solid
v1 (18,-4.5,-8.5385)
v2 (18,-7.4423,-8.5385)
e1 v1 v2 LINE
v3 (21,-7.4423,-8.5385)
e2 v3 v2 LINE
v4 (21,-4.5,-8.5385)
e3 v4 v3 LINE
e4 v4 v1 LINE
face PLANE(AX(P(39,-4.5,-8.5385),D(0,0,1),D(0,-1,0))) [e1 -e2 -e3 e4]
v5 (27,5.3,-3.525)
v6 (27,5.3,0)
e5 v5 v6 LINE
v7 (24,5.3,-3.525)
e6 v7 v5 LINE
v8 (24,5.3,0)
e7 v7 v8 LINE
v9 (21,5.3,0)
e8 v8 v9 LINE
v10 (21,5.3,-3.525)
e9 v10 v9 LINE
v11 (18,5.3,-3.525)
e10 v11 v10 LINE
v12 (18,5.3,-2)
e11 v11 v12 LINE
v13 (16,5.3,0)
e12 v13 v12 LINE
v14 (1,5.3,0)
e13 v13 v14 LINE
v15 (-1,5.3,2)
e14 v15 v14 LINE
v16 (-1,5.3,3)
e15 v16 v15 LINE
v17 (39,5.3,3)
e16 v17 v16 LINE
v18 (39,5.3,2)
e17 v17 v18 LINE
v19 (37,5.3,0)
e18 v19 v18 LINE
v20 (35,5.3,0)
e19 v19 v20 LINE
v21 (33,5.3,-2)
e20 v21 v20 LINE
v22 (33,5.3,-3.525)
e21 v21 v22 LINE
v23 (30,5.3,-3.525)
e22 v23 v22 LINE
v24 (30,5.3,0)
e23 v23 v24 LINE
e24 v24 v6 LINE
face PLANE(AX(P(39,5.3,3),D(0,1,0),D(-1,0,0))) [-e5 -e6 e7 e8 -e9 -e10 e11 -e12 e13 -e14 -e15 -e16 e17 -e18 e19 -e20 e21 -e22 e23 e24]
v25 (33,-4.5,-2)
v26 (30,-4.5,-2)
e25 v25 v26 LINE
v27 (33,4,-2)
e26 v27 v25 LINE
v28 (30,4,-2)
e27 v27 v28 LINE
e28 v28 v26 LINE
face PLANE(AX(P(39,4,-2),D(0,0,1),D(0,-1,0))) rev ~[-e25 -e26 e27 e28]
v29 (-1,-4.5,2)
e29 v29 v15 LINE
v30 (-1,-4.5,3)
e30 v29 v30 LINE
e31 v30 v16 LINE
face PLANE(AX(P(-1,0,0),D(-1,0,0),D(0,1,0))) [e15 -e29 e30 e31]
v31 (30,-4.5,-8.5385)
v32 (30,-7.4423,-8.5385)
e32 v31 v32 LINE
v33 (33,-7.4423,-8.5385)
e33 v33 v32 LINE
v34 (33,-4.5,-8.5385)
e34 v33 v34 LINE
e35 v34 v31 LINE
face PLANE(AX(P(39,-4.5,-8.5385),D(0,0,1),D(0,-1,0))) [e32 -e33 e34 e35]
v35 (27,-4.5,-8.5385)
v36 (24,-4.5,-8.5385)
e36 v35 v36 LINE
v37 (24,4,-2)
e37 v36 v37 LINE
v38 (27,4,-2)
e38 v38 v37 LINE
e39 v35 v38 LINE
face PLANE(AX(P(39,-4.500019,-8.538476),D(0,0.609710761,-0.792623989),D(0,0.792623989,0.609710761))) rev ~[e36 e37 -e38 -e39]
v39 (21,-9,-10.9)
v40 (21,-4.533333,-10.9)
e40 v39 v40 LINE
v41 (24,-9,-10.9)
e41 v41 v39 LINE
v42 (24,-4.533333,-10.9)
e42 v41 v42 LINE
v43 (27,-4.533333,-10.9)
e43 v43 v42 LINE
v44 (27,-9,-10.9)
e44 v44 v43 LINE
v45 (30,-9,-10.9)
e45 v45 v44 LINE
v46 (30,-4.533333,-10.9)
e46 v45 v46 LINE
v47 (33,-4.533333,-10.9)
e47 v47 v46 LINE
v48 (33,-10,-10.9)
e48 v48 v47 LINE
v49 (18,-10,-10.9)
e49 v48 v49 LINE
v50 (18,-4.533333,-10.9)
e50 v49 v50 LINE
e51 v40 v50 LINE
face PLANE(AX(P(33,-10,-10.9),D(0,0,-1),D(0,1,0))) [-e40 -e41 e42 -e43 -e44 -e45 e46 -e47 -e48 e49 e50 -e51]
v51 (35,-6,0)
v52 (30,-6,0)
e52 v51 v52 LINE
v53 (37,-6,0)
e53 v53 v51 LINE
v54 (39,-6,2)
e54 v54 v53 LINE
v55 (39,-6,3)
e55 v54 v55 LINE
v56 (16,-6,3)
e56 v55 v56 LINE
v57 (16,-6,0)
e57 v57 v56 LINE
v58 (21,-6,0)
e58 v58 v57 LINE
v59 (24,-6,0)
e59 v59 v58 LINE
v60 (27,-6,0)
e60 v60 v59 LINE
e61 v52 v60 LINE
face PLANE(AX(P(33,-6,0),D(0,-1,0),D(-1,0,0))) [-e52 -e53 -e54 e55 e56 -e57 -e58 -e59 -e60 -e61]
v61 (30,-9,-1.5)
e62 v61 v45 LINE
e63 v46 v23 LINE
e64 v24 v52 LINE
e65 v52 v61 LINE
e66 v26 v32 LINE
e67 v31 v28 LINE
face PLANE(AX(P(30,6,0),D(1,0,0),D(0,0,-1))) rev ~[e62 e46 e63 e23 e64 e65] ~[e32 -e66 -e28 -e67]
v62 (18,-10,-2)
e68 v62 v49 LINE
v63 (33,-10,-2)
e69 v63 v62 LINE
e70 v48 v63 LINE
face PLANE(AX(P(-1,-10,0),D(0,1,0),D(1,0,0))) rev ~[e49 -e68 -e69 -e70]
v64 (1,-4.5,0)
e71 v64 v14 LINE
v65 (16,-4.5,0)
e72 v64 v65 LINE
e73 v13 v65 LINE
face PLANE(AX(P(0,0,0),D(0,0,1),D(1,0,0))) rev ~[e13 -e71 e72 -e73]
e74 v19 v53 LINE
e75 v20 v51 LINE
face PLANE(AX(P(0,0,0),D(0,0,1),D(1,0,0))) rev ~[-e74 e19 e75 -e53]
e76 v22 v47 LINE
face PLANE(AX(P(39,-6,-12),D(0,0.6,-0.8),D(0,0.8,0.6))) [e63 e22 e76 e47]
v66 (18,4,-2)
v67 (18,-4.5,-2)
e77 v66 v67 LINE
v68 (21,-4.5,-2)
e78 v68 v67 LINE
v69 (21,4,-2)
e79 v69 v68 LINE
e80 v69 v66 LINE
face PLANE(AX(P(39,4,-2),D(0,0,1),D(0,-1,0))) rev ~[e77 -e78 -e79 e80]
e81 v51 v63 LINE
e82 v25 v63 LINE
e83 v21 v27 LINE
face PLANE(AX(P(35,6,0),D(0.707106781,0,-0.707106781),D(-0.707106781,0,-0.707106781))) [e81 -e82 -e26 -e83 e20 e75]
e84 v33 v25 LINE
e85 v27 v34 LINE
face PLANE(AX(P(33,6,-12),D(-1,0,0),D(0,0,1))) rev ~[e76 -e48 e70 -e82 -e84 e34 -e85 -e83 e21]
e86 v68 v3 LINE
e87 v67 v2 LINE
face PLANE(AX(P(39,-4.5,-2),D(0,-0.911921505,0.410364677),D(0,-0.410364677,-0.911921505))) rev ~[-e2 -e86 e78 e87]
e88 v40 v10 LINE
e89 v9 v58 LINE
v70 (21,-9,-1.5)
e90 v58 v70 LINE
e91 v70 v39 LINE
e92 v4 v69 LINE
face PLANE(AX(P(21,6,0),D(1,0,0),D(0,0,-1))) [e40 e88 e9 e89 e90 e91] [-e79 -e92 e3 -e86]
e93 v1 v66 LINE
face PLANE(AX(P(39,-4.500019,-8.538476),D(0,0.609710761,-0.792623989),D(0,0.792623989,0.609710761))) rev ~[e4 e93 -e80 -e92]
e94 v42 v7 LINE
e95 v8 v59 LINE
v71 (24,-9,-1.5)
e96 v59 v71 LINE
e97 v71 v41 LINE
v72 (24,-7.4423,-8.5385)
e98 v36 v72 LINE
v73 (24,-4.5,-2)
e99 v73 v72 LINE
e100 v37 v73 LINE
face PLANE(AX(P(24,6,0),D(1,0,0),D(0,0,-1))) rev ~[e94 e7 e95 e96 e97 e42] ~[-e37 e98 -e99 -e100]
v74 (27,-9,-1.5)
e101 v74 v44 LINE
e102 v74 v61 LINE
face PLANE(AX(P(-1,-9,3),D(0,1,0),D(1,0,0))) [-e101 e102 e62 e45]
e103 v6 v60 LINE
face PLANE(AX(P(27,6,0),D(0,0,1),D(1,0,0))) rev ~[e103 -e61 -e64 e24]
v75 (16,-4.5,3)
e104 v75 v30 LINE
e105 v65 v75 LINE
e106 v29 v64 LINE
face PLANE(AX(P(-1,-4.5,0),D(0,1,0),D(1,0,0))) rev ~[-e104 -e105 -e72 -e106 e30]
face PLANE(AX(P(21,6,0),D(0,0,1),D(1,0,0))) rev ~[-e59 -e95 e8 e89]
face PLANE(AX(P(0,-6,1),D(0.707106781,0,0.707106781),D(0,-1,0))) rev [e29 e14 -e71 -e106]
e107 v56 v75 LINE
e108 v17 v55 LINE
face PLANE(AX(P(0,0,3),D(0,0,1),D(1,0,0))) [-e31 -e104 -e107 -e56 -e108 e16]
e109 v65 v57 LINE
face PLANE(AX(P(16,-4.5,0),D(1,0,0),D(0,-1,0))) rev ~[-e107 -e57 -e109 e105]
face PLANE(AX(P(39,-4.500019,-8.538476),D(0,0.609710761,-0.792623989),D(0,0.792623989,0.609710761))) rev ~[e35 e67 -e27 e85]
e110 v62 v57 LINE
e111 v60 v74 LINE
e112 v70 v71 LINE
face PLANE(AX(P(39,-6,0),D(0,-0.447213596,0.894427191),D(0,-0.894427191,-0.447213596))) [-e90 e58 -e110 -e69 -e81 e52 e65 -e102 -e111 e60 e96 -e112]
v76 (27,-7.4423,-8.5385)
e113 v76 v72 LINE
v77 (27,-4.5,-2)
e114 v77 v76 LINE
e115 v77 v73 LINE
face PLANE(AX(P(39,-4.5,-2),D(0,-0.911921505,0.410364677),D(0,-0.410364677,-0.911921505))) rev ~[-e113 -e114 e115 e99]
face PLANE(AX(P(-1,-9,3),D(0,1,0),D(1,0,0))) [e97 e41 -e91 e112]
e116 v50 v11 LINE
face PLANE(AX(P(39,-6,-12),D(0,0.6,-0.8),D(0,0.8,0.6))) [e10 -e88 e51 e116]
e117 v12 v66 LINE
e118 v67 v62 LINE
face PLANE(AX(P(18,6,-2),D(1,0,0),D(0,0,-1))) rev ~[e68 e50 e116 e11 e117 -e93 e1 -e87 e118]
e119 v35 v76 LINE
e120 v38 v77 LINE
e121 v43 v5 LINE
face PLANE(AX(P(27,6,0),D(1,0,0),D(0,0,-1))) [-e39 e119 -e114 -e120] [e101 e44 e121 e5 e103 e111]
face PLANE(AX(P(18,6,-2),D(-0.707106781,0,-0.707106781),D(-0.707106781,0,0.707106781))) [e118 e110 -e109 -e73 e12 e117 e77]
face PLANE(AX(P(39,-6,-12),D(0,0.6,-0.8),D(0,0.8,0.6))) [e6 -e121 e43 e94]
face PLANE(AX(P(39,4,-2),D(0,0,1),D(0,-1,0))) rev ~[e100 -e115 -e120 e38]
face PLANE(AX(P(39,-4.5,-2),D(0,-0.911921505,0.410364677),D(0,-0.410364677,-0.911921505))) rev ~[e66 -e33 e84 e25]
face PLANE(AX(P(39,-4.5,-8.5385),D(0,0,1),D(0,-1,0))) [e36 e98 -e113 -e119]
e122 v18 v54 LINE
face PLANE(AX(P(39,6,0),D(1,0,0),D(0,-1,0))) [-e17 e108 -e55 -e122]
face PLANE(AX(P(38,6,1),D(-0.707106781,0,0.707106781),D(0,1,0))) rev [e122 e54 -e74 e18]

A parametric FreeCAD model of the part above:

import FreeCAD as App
import Part
import Sketcher


def edges_at(feature, points):
    """Names of the edges that pass closest to the given points."""
    edges = feature.Shape.Edges
    near = lambda p: min(range(len(edges)), key=lambda i: edges[i].distToShape(Part.Vertex(*p))[0])
    return sorted({f"Edge{near(p) + 1}" for p in points})


def add_polygon(sketch, points):
    """Adds a closed chain of lines whose ends are joined by coincident constraints."""
    first, n = sketch.GeometryCount, len(points)
    for a, b in zip(points, points[1:] + points[:1]):
        sketch.addGeometry(Part.LineSegment(App.Vector(*a, 0), App.Vector(*b, 0)), False)
    for i in range(n):
        sketch.addConstraint(Sketcher.Constraint("Coincident", first + i, 2, first + (i + 1) % n, 1))

doc = App.newDocument("Part")
params = doc.addObject("Spreadsheet::Sheet", "Params")
for row, (alias, value) in enumerate([
    ("sketch1_width", "40 mm"),
    ("sketch1_height", "12 mm"),
    ("pad1_length", "3 mm"),
    ("sketch2_width", "19 mm"),
    ("pad2_length", "16 mm"),
    ("sketch3_width", "3 mm"),
    ("sketch3_height", "12 mm"),
    ("pocket1_length", "15 mm"),
    ("sketch4_height", "2 mm"),
    ("sketch4_width", "12 mm"),
    ("sketch4_width2", "4 mm"),
    ("sketch4_height2", "9 mm"),
    ("sketch4_length", "7.17 mm"),
    ("pocket2_length", "25 mm"),
    ("chamfer_size", "2 mm"),
    ("chamfer2_size", "2 mm"),
    ("sketch5_width", "7 mm"),
    ("sketch5_height", "1.1 mm"),
    ("pocket3_length", "15 mm"),
    ("sketch6_height", "1.5 mm"),
    ("sketch6_width", "17 mm"),
    ("pocket4_length", "10 mm"),
    ("sketch7_height", "0.7 mm"),
    ("sketch7_width", "40 mm"),
    ("pocket5_length", "10 mm"),
], start=1):
    params.set(f"A{row}", alias)
    params.set(f"B{row}", "=" + value)
    params.setAlias(f"B{row}", alias)

body = doc.addObject("PartDesign::Body", "Body")

# Sketch on XY plane
sketch1 = body.newObject("Sketcher::SketchObject", "Sketch")
sketch1.AttachmentSupport = (doc.getObject("XY_Plane"), [""])
sketch1.MapMode = "FlatFace"
add_polygon(sketch1, [(-1, 6), (-1, -6), (39, -6), (39, 6)])  # lines 0-3
sketch1.addConstraint(Sketcher.Constraint("Vertical", 0))
sketch1.addConstraint(Sketcher.Constraint("Horizontal", 1))
sketch1.addConstraint(Sketcher.Constraint("Vertical", 2))
sketch1.addConstraint(Sketcher.Constraint("Horizontal", 3))
sketch1.addConstraint(Sketcher.Constraint("DistanceX", 0, 2, -1, 1, 1.0))
sketch1.addConstraint(Sketcher.Constraint("DistanceX", 1, 1, 1, 2, 40.0))
sketch1.addConstraint(Sketcher.Constraint("DistanceY", 0, 2, 0, 1, 12.0))
sketch1.addConstraint(Sketcher.Constraint("DistanceY", 0, 2, -1, 1, 6.0))
sketch1.setExpression("Constraints[9]", "Params.sketch1_width")
sketch1.setExpression("Constraints[10]", "Params.sketch1_height")
pad1 = body.newObject("PartDesign::Pad", "Pad")
pad1.Profile = sketch1
pad1.setExpression("Length", "Params.pad1_length")

# Sketch on XZ plane
sketch2 = body.newObject("Sketcher::SketchObject", "Sketch001")
sketch2.AttachmentSupport = (doc.getObject("XZ_Plane"), [""])
sketch2.MapMode = "FlatFace"
sketch2.AttachmentOffset = App.Placement(App.Vector(0, 0, -6), App.Rotation())
add_polygon(sketch2, [(18, -12), (18, -2), (16, 0), (35, 0), (33, -2), (33, -12)])  # lines 0-5
sketch2.addConstraint(Sketcher.Constraint("Vertical", 0))
sketch2.addConstraint(Sketcher.Constraint("Horizontal", 2))
sketch2.addConstraint(Sketcher.Constraint("Vertical", 4))
sketch2.addConstraint(Sketcher.Constraint("Horizontal", 5))
sketch2.addConstraint(Sketcher.Constraint("PointOnObject", 1, 2, -1))
sketch2.addConstraint(Sketcher.Constraint("Perpendicular", 1, 3))
sketch2.addConstraint(Sketcher.Constraint("Horizontal", 0, 2, 3, 2))
sketch2.addConstraint(Sketcher.Constraint("Equal", 1, 3))
sketch2.addConstraint(Sketcher.Constraint("DistanceY", 0, 2, -1, 1, 2.0))
sketch2.addConstraint(Sketcher.Constraint("DistanceY", 4, 2, -1, 1, 12.0))
sketch2.addConstraint(Sketcher.Constraint("DistanceX", 2, 1, 2, 2, 19.0))
sketch2.addConstraint(Sketcher.Constraint("DistanceX", -1, 1, 0, 2, 18.0))
sketch2.setExpression("Constraints[16]", "Params.sketch2_width")
pad2 = body.newObject("PartDesign::Pad", "Pad001")
pad2.Profile = sketch2
pad2.setExpression("Length", "Params.pad2_length")

# Sketch on XZ plane
sketch3 = body.newObject("Sketcher::SketchObject", "Sketch002")
sketch3.AttachmentSupport = (doc.getObject("XZ_Plane"), [""])
sketch3.MapMode = "FlatFace"
sketch3.AttachmentOffset = App.Placement(App.Vector(0, 0, -6), App.Rotation())
add_polygon(sketch3, [(30, 0), (30, -12), (27, -12), (27, 0)])  # lines 0-3
add_polygon(sketch3, [(24, 0), (24, -12), (21, -12), (21, 0)])  # lines 4-7
sketch3.addConstraint(Sketcher.Constraint("Vertical", 0))
sketch3.addConstraint(Sketcher.Constraint("Horizontal", 1))
sketch3.addConstraint(Sketcher.Constraint("Vertical", 2))
sketch3.addConstraint(Sketcher.Constraint("Horizontal", 3))
sketch3.addConstraint(Sketcher.Constraint("Vertical", 4))
sketch3.addConstraint(Sketcher.Constraint("Horizontal", 5))
sketch3.addConstraint(Sketcher.Constraint("Vertical", 6))
sketch3.addConstraint(Sketcher.Constraint("Horizontal", 7))
sketch3.addConstraint(Sketcher.Constraint("PointOnObject", 2, 2, -1))
sketch3.addConstraint(Sketcher.Constraint("PointOnObject", 6, 2, -1))
sketch3.addConstraint(Sketcher.Constraint("Horizontal", 1, 2, 4, 2))
sketch3.addConstraint(Sketcher.Constraint("Equal", 3, 5))
sketch3.addConstraint(Sketcher.Constraint("DistanceX", 1, 2, 1, 1, 3.0))
sketch3.addConstraint(Sketcher.Constraint("DistanceX", 4, 2, 1, 2, 3.0))
sketch3.addConstraint(Sketcher.Constraint("DistanceY", 0, 2, 0, 1, 12.0))
sketch3.addConstraint(Sketcher.Constraint("DistanceX", -1, 1, 0, 2, 30.0))
sketch3.setExpression("Constraints[20]", "Params.sketch3_width")
sketch3.setExpression("Constraints[22]", "Params.sketch3_height")
pocket1 = body.newObject("PartDesign::Pocket", "Pocket")
pocket1.Profile = sketch3
pocket1.setExpression("Length", "Params.pocket1_length")
pocket1.Reversed = True

# Sketch on YZ plane
sketch4 = body.newObject("Sketcher::SketchObject", "Sketch003")
sketch4.AttachmentSupport = (doc.getObject("YZ_Plane"), [""])
sketch4.MapMode = "FlatFace"
sketch4.AttachmentOffset = App.Placement(App.Vector(0, 0, 39), App.Rotation())
add_polygon(sketch4, [(-4.5, -8.5), (4, -2), (-4.5, -2), (-7.4, -8.5)])  # lines 0-3
add_polygon(sketch4, [(6, -12), (6, -3), (-6, -12)])  # lines 4-6
add_polygon(sketch4, [(-10, 0), (-10, -2), (-6, 0)])  # lines 7-9
sketch4.addConstraint(Sketcher.Constraint("Horizontal", 1))
sketch4.addConstraint(Sketcher.Constraint("Horizontal", 3))
sketch4.addConstraint(Sketcher.Constraint("Vertical", 4))
sketch4.addConstraint(Sketcher.Constraint("Horizontal", 6))
sketch4.addConstraint(Sketcher.Constraint("Vertical", 7))
sketch4.addConstraint(Sketcher.Constraint("Horizontal", 9))
sketch4.addConstraint(Sketcher.Constraint("PointOnObject", 8, 2, -1))
sketch4.addConstraint(Sketcher.Constraint("Horizontal", 1, 2, 7, 2))
sketch4.addConstraint(Sketcher.Constraint("Vertical", 1, 2, 3, 2))
sketch4.addConstraint(Sketcher.Constraint("Vertical", 5, 2, 8, 2))
sketch4.addConstraint(Sketcher.Constraint("DistanceY", 7, 2, 7, 1, 2.0))
sketch4.addConstraint(Sketcher.Constraint("DistanceX", 0, 2, 4, 2, 2.0))
sketch4.addConstraint(Sketcher.Constraint("DistanceY", 4, 2, 0, 2, 1.0))
sketch4.addConstraint(Sketcher.Constraint("DistanceX", 5, 2, 3, 2, 1.5))
sketch4.addConstraint(Sketcher.Constraint("DistanceX", 6, 1, 6, 2, 12.0))
sketch4.addConstraint(Sketcher.Constraint("DistanceX", 9, 2, 9, 1, 4.0))
sketch4.addConstraint(Sketcher.Constraint("DistanceY", 4, 1, 4, 2, 9.0))
sketch4.addConstraint(Sketcher.Constraint("DistanceX", -1, 1, 0, 2, 4.0))
sketch4.addConstraint(Sketcher.Constraint("Distance", 2, 7.17))
sketch4.addConstraint(Sketcher.Constraint("Distance", 0, 10.724))
sketch4.setExpression("Constraints[20]", "Params.sketch4_height")
sketch4.setExpression("Constraints[24]", "Params.sketch4_width")
sketch4.setExpression("Constraints[25]", "Params.sketch4_width2")
sketch4.setExpression("Constraints[26]", "Params.sketch4_height2")
sketch4.setExpression("Constraints[28]", "Params.sketch4_length")
pocket2 = body.newObject("PartDesign::Pocket", "Pocket001")
pocket2.Profile = sketch4
pocket2.setExpression("Length", "Params.pocket2_length")
doc.recompute()

chamfer = body.newObject("PartDesign::Chamfer", "Chamfer")
chamfer.Base = (pocket2, edges_at(pocket2, [(-1, 0, 0)]))
chamfer.setExpression("Size", "Params.chamfer_size")
doc.recompute()

chamfer2 = body.newObject("PartDesign::Chamfer", "Chamfer001")
chamfer2.Base = (chamfer, edges_at(chamfer, [(39, 0, 0)]))
chamfer2.setExpression("Size", "Params.chamfer2_size")

# Sketch on YZ plane
sketch5 = body.newObject("Sketcher::SketchObject", "Sketch004")
sketch5.AttachmentSupport = (doc.getObject("YZ_Plane"), [""])
sketch5.MapMode = "FlatFace"
sketch5.AttachmentOffset = App.Placement(App.Vector(0, 0, 33), App.Rotation())
add_polygon(sketch5, [(-10, -10.9), (-10, -12), (-3, -12), (-3, -10.9)])  # lines 0-3
sketch5.addConstraint(Sketcher.Constraint("Vertical", 0))
sketch5.addConstraint(Sketcher.Constraint("Horizontal", 1))
sketch5.addConstraint(Sketcher.Constraint("Vertical", 2))
sketch5.addConstraint(Sketcher.Constraint("Horizontal", 3))
sketch5.addConstraint(Sketcher.Constraint("DistanceX", 1, 1, 1, 2, 7.0))
sketch5.addConstraint(Sketcher.Constraint("DistanceY", 0, 2, 0, 1, 1.1))
sketch5.addConstraint(Sketcher.Constraint("DistanceX", 0, 2, -1, 1, 10.0))
sketch5.addConstraint(Sketcher.Constraint("DistanceY", 0, 2, -1, 1, 12.0))
sketch5.setExpression("Constraints[8]", "Params.sketch5_width")
sketch5.setExpression("Constraints[9]", "Params.sketch5_height")
pocket3 = body.newObject("PartDesign::Pocket", "Pocket002")
pocket3.Profile = sketch5
pocket3.setExpression("Length", "Params.pocket3_length")

# Sketch on XY plane
sketch6 = body.newObject("Sketcher::SketchObject", "Sketch005")
sketch6.AttachmentSupport = (doc.getObject("XY_Plane"), [""])
sketch6.MapMode = "FlatFace"
add_polygon(sketch6, [(16, -6), (-1, -6), (-1, -4.5), (16, -4.5)])  # lines 0-3
sketch6.addConstraint(Sketcher.Constraint("Horizontal", 0))
sketch6.addConstraint(Sketcher.Constraint("Vertical", 1))
sketch6.addConstraint(Sketcher.Constraint("Horizontal", 2))
sketch6.addConstraint(Sketcher.Constraint("Vertical", 3))
sketch6.addConstraint(Sketcher.Constraint("DistanceY", 1, 1, 1, 2, 1.5))
sketch6.addConstraint(Sketcher.Constraint("DistanceX", 0, 2, 0, 1, 17.0))
sketch6.addConstraint(Sketcher.Constraint("DistanceX", 0, 2, -1, 1, 1.0))
sketch6.addConstraint(Sketcher.Constraint("DistanceY", 0, 2, -1, 1, 6.0))
sketch6.setExpression("Constraints[8]", "Params.sketch6_height")
sketch6.setExpression("Constraints[9]", "Params.sketch6_width")
pocket4 = body.newObject("PartDesign::Pocket", "Pocket003")
pocket4.Profile = sketch6
pocket4.setExpression("Length", "Params.pocket4_length")
pocket4.Reversed = True

# Sketch on XY plane
sketch7 = body.newObject("Sketcher::SketchObject", "Sketch006")
sketch7.AttachmentSupport = (doc.getObject("XY_Plane"), [""])
sketch7.MapMode = "FlatFace"
sketch7.AttachmentOffset = App.Placement(App.Vector(0, 0, 3), App.Rotation())
add_polygon(sketch7, [(39, 5.3), (39, 6), (-1, 6), (-1, 5.3)])  # lines 0-3
sketch7.addConstraint(Sketcher.Constraint("Vertical", 0))
sketch7.addConstraint(Sketcher.Constraint("Horizontal", 1))
sketch7.addConstraint(Sketcher.Constraint("Vertical", 2))
sketch7.addConstraint(Sketcher.Constraint("Horizontal", 3))
sketch7.addConstraint(Sketcher.Constraint("DistanceY", 0, 1, 0, 2, 0.7))
sketch7.addConstraint(Sketcher.Constraint("DistanceX", 1, 2, 1, 1, 40.0))
sketch7.addConstraint(Sketcher.Constraint("DistanceX", -1, 1, 0, 2, 39.0))
sketch7.addConstraint(Sketcher.Constraint("DistanceY", -1, 1, 0, 2, 6.0))
sketch7.setExpression("Constraints[8]", "Params.sketch7_height")
sketch7.setExpression("Constraints[9]", "Params.sketch7_width")
pocket5 = body.newObject("PartDesign::Pocket", "Pocket004")
pocket5.Profile = sketch7
pocket5.setExpression("Length", "Params.pocket5_length")

doc.recompute()
